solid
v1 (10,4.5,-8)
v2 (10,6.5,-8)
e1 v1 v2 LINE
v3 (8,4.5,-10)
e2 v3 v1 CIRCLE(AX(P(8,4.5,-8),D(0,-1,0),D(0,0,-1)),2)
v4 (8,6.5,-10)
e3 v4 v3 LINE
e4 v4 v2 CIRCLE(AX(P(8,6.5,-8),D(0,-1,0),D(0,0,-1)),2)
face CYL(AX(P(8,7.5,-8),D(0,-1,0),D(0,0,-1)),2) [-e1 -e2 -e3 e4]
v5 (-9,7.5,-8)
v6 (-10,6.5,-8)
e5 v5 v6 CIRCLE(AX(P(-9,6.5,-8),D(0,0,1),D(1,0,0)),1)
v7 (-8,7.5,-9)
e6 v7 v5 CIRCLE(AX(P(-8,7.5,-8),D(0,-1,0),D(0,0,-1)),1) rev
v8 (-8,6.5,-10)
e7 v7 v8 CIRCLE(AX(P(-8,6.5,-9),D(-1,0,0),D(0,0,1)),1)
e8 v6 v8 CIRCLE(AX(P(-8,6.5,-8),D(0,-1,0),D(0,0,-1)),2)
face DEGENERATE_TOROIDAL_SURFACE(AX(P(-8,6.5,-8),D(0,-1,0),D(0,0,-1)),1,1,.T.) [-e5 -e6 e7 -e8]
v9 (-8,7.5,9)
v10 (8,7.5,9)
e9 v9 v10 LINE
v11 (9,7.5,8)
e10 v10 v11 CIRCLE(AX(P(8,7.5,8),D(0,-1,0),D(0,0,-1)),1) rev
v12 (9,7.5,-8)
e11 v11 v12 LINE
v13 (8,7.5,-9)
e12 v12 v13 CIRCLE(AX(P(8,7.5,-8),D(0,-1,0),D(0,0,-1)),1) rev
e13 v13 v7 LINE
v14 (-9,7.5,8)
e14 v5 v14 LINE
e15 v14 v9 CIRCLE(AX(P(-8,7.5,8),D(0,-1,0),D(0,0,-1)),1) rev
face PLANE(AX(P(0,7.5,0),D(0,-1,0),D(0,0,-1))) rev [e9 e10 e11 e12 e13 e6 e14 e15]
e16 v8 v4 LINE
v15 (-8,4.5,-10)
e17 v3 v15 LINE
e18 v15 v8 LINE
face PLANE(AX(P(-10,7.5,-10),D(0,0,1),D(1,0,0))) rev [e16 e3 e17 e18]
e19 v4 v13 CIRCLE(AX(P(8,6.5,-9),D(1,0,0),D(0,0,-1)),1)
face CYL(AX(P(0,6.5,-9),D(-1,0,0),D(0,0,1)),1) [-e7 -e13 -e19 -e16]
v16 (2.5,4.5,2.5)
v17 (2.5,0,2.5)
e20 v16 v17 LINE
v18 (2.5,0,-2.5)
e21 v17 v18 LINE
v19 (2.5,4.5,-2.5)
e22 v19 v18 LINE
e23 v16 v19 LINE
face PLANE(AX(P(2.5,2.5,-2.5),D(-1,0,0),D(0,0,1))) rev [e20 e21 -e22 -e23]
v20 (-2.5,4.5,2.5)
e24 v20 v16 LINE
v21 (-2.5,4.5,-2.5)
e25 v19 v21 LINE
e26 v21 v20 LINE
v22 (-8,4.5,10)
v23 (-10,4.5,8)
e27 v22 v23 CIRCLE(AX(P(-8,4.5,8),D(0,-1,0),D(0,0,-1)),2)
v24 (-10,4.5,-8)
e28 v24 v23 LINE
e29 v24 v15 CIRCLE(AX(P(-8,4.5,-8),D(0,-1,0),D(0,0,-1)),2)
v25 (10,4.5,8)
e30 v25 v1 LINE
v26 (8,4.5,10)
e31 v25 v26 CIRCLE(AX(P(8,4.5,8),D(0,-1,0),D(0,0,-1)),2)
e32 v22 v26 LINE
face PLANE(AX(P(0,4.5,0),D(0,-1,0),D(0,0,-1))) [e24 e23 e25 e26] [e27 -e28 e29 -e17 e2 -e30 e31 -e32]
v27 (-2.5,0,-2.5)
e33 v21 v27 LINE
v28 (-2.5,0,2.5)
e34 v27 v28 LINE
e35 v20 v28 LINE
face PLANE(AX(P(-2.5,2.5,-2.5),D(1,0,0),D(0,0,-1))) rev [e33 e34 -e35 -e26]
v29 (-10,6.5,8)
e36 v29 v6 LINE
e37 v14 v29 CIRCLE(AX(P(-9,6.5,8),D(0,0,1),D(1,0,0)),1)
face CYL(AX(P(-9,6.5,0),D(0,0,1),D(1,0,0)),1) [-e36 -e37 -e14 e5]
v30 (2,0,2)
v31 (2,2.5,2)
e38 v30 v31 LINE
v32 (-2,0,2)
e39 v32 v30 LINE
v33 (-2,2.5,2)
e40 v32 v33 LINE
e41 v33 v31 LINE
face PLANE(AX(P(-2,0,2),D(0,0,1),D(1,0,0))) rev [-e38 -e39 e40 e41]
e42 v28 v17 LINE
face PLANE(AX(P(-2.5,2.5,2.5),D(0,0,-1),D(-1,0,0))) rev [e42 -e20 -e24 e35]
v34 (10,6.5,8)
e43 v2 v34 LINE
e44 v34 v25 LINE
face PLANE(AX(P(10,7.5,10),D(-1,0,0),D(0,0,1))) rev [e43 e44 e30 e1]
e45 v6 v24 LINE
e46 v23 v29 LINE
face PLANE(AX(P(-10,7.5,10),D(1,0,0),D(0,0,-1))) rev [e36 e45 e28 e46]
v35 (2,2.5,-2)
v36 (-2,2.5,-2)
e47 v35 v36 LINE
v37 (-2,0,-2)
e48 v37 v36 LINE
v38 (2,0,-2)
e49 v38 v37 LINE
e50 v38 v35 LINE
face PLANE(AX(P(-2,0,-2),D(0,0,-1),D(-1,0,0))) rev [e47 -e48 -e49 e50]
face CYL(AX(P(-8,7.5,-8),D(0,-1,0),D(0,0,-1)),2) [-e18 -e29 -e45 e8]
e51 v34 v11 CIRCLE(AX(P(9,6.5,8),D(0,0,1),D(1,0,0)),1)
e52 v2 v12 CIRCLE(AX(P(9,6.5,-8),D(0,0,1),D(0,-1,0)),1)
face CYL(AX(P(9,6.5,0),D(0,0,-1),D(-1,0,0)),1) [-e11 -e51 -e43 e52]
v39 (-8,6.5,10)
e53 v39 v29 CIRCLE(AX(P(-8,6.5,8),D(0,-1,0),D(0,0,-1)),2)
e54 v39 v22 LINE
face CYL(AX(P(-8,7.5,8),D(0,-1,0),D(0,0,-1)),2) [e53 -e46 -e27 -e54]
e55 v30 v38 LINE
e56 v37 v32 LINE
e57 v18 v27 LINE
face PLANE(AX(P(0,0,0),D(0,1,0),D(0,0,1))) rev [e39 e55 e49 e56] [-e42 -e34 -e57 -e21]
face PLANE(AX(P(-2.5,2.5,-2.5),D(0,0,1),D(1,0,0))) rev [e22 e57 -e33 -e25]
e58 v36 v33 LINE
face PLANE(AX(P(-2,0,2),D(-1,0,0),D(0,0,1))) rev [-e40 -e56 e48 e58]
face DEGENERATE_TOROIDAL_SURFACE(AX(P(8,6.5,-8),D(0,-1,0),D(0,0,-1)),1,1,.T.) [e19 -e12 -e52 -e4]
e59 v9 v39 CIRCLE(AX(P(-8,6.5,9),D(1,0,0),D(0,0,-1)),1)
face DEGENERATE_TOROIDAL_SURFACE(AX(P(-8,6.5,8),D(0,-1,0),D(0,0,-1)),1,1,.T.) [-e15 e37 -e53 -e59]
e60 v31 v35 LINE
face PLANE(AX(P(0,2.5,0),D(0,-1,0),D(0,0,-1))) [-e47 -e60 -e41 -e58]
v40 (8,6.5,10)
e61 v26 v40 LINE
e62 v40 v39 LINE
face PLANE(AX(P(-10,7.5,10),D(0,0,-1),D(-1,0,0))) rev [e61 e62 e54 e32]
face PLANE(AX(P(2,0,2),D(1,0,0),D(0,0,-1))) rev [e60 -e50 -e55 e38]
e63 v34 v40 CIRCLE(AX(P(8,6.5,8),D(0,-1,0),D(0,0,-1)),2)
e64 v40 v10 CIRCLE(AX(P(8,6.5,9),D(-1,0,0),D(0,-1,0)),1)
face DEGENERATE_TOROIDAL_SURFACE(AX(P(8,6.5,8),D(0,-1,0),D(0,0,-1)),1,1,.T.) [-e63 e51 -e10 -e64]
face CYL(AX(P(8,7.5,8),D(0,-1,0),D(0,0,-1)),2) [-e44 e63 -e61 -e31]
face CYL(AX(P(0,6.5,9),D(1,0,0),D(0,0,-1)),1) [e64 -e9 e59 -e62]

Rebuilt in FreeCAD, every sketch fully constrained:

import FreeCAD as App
import Part
import Sketcher

V = App.Vector
Q = App.Units.Quantity


def edges_at(feature, points):
    """Names of the edges that pass closest to the given points."""
    edges = feature.Shape.Edges
    near = lambda p: min(range(len(edges)), key=lambda i: edges[i].distToShape(Part.Vertex(*p))[0])
    return sorted({f"Edge{near(p) + 1}" for p in points})

doc = App.newDocument("Part")
body = doc.addObject("PartDesign::Body", "Body")

# Sketch on XZ plane
sketch1 = body.newObject("Sketcher::SketchObject", "Sketch")
sketch1.AttachmentSupport = (doc.getObject("XZ_Plane"), [""])
sketch1.MapMode = "FlatFace"
sketch1.addGeometry(Part.LineSegment(V(-2, -2, 0), V(-2, 2, 0)), False)
sketch1.addGeometry(Part.LineSegment(V(-2, 2, 0), V(2, 2, 0)), False)
sketch1.addGeometry(Part.LineSegment(V(2, 2, 0), V(2, -2, 0)), False)
sketch1.addGeometry(Part.LineSegment(V(2, -2, 0), V(-2, -2, 0)), False)
sketch1.addConstraint(Sketcher.Constraint("Coincident", 0, 2, 1, 1))
sketch1.addConstraint(Sketcher.Constraint("Coincident", 1, 2, 2, 1))
sketch1.addConstraint(Sketcher.Constraint("Coincident", 2, 2, 3, 1))
sketch1.addConstraint(Sketcher.Constraint("Coincident", 3, 2, 0, 1))
sketch1.addConstraint(Sketcher.Constraint("Vertical", 0))
sketch1.addConstraint(Sketcher.Constraint("Horizontal", 1))
sketch1.addConstraint(Sketcher.Constraint("Vertical", 2))
sketch1.addConstraint(Sketcher.Constraint("Horizontal", 3))
sketch1.addConstraint(Sketcher.Constraint("Symmetric", 0, 2, 2, 2, -1, 1))
sketch1.addConstraint(Sketcher.Constraint("Equal", 3, 0))
sketch1.addConstraint(Sketcher.Constraint("DistanceX", 1, 1, 1, 2, Q("5 mm")))
pad1 = body.newObject("PartDesign::Pad", "Pad")
pad1.Profile = sketch1
pad1.Length = 2.5
pad1.Reversed = True

# Sketch on XZ plane
sketch2 = body.newObject("Sketcher::SketchObject", "Sketch001")
sketch2.AttachmentSupport = (doc.getObject("XZ_Plane"), [""])
sketch2.MapMode = "FlatFace"
sketch2.AttachmentOffset = App.Placement(V(0, 0, -2.5), App.Rotation())
sketch2.addGeometry(Part.LineSegment(V(-2, -2, 0), V(-2, 2, 0)), False)
sketch2.addGeometry(Part.LineSegment(V(-2, 2, 0), V(2, 2, 0)), False)
sketch2.addGeometry(Part.LineSegment(V(2, 2, 0), V(2, -2, 0)), False)
sketch2.addGeometry(Part.LineSegment(V(2, -2, 0), V(-2, -2, 0)), False)
sketch2.addConstraint(Sketcher.Constraint("Coincident", 0, 2, 1, 1))
sketch2.addConstraint(Sketcher.Constraint("Coincident", 1, 2, 2, 1))
sketch2.addConstraint(Sketcher.Constraint("Coincident", 2, 2, 3, 1))
sketch2.addConstraint(Sketcher.Constraint("Coincident", 3, 2, 0, 1))
sketch2.addConstraint(Sketcher.Constraint("Vertical", 0))
sketch2.addConstraint(Sketcher.Constraint("Horizontal", 1))
sketch2.addConstraint(Sketcher.Constraint("Vertical", 2))
sketch2.addConstraint(Sketcher.Constraint("Horizontal", 3))
sketch2.addConstraint(Sketcher.Constraint("Symmetric", 0, 2, 2, 2, -1, 1))
sketch2.addConstraint(Sketcher.Constraint("Equal", 3, 0))
sketch2.addConstraint(Sketcher.Constraint("DistanceX", 1, 1, 1, 2, Q("4 mm")))
pocket1 = body.newObject("PartDesign::Pocket", "Pocket")
pocket1.Profile = sketch2
pocket1.Length = 2.5
pocket1.Reversed = True

# Sketch on XZ plane
sketch3 = body.newObject("Sketcher::SketchObject", "Sketch002")
sketch3.AttachmentSupport = (doc.getObject("XZ_Plane"), [""])
sketch3.MapMode = "FlatFace"
sketch3.AttachmentOffset = App.Placement(V(0, 0, -2.5), App.Rotation())
sketch3.addGeometry(Part.LineSegment(V(-2, -2, 0), V(-2, 2, 0)), False)
sketch3.addGeometry(Part.LineSegment(V(-2, 2, 0), V(2, 2, 0)), False)
sketch3.addGeometry(Part.LineSegment(V(2, 2, 0), V(2, -2, 0)), False)
sketch3.addGeometry(Part.LineSegment(V(2, -2, 0), V(-2, -2, 0)), False)
sketch3.addConstraint(Sketcher.Constraint("Coincident", 0, 2, 1, 1))
sketch3.addConstraint(Sketcher.Constraint("Coincident", 1, 2, 2, 1))
sketch3.addConstraint(Sketcher.Constraint("Coincident", 2, 2, 3, 1))
sketch3.addConstraint(Sketcher.Constraint("Coincident", 3, 2, 0, 1))
sketch3.addConstraint(Sketcher.Constraint("Vertical", 0))
sketch3.addConstraint(Sketcher.Constraint("Horizontal", 1))
sketch3.addConstraint(Sketcher.Constraint("Vertical", 2))
sketch3.addConstraint(Sketcher.Constraint("Horizontal", 3))
sketch3.addConstraint(Sketcher.Constraint("Symmetric", 0, 2, 2, 2, -1, 1))
sketch3.addConstraint(Sketcher.Constraint("Equal", 3, 0))
sketch3.addConstraint(Sketcher.Constraint("DistanceX", 1, 1, 1, 2, Q("5 mm")))
pad2 = body.newObject("PartDesign::Pad", "Pad001")
pad2.Profile = sketch3
pad2.Length = 2
pad2.Reversed = True

# Sketch on XZ plane
sketch4 = body.newObject("Sketcher::SketchObject", "Sketch003")
sketch4.AttachmentSupport = (doc.getObject("XZ_Plane"), [""])
sketch4.MapMode = "FlatFace"
sketch4.AttachmentOffset = App.Placement(V(0, 0, -4.5), App.Rotation())
sketch4.addGeometry(Part.LineSegment(V(-10, -10, 0), V(-10, 10, 0)), False)
sketch4.addGeometry(Part.LineSegment(V(-10, 10, 0), V(10, 10, 0)), False)
sketch4.addGeometry(Part.LineSegment(V(10, 10, 0), V(10, -10, 0)), False)
sketch4.addGeometry(Part.LineSegment(V(10, -10, 0), V(-10, -10, 0)), False)
sketch4.addConstraint(Sketcher.Constraint("Coincident", 0, 2, 1, 1))
sketch4.addConstraint(Sketcher.Constraint("Coincident", 1, 2, 2, 1))
sketch4.addConstraint(Sketcher.Constraint("Coincident", 2, 2, 3, 1))
sketch4.addConstraint(Sketcher.Constraint("Coincident", 3, 2, 0, 1))
sketch4.addConstraint(Sketcher.Constraint("Vertical", 0))
sketch4.addConstraint(Sketcher.Constraint("Horizontal", 1))
sketch4.addConstraint(Sketcher.Constraint("Vertical", 2))
sketch4.addConstraint(Sketcher.Constraint("Horizontal", 3))
sketch4.addConstraint(Sketcher.Constraint("Symmetric", 0, 2, 2, 2, -1, 1))
sketch4.addConstraint(Sketcher.Constraint("Equal", 3, 0))
sketch4.addConstraint(Sketcher.Constraint("DistanceX", 1, 1, 1, 2, Q("20 mm")))
pad3 = body.newObject("PartDesign::Pad", "Pad002")
pad3.Profile = sketch4
pad3.Length = 3
pad3.Reversed = True
doc.recompute()

fillet = body.newObject("PartDesign::Fillet", "Fillet")
fillet.Base = (pad3, edges_at(pad3, [
    (10, 6, 10),
    (10, 6, -10),
    (-10, 6, -10),
    (-10, 6, 10),
]))
fillet.Radius = 2
doc.recompute()

fillet2 = body.newObject("PartDesign::Fillet", "Fillet001")
fillet2.Base = (fillet, edges_at(fillet, [
    (-10, 7.5, 0),
    (0, 7.5, -10),
    (10, 7.5, 0),
    (0, 7.5, 10),
    (-9.414, 7.5, 9.414),
    (9.414, 7.5, 9.414),
    (9.414, 7.5, -9.414),
    (-9.414, 7.5, -9.414),
]))
fillet2.Radius = 1

doc.recompute()
